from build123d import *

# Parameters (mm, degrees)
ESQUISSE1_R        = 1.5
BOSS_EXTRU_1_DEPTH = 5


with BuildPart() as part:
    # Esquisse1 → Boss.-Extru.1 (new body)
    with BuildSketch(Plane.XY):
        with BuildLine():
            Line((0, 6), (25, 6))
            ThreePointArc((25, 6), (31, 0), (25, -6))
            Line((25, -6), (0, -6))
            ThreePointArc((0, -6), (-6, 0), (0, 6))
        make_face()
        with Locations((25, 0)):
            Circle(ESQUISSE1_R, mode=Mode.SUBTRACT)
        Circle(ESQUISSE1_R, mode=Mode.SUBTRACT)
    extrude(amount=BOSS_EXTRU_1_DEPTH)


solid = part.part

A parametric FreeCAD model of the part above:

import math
import FreeCAD as App
import Part
import Sketcher
Q = App.Units.Quantity

doc = App.newDocument("Part")
body = doc.addObject("PartDesign::Body", "Body")

sketch1 = body.newObject("Sketcher::SketchObject", "Sketch")
sketch1.AttachmentSupport = (doc.getObject("XY_Plane"), [""])
sketch1.MapMode = "FlatFace"
sketch1.addGeometry([
    Part.LineSegment(App.Vector(25, 6, 0), App.Vector(0, 6, 0)),
    Part.ArcOfCircle(Part.Circle(App.Vector(0, 0, 0), App.Vector(0, 0, 1), 6), math.radians(90), math.radians(270)),
    Part.LineSegment(App.Vector(0, -6, 0), App.Vector(25, -6, 0)),
    Part.ArcOfCircle(Part.Circle(App.Vector(25, 0, 0), App.Vector(0, 0, 1), 6), math.radians(-90), math.radians(90)),
    Part.Circle(App.Vector(25, 0, 0), App.Vector(0, 0, 1), 1.5),
    Part.Circle(App.Vector(0, 0, 0), App.Vector(0, 0, 1), 1.5),
], False)
sketch1.addConstraint([
    Sketcher.Constraint("Tangent", 0, 2, 1, 1),
    Sketcher.Constraint("Tangent", 1, 2, 2, 1),
    Sketcher.Constraint("Tangent", 2, 2, 3, 1),
    Sketcher.Constraint("Tangent", 3, 2, 0, 1),
    Sketcher.Constraint("Horizontal", 0),
    Sketcher.Constraint("Horizontal", 2),
    Sketcher.Constraint("Coincident", 1, 3, -1, 1),
    Sketcher.Constraint("Coincident", 5, 3, -1, 1),
    Sketcher.Constraint("Coincident", 4, 3, 3, 3),
    Sketcher.Constraint("Equal", 4, 5),
    Sketcher.Constraint("Diameter", 4, Q("3 mm")),
    Sketcher.Constraint("Radius", 1, Q("6 mm")),
    Sketcher.Constraint("DistanceX", 0, 2, 0, 1, Q("25 mm")),
])
pad1 = body.newObject("PartDesign::Pad", "Pad")
pad1.Profile = sketch1
pad1.Length = 5

doc.recompute()
